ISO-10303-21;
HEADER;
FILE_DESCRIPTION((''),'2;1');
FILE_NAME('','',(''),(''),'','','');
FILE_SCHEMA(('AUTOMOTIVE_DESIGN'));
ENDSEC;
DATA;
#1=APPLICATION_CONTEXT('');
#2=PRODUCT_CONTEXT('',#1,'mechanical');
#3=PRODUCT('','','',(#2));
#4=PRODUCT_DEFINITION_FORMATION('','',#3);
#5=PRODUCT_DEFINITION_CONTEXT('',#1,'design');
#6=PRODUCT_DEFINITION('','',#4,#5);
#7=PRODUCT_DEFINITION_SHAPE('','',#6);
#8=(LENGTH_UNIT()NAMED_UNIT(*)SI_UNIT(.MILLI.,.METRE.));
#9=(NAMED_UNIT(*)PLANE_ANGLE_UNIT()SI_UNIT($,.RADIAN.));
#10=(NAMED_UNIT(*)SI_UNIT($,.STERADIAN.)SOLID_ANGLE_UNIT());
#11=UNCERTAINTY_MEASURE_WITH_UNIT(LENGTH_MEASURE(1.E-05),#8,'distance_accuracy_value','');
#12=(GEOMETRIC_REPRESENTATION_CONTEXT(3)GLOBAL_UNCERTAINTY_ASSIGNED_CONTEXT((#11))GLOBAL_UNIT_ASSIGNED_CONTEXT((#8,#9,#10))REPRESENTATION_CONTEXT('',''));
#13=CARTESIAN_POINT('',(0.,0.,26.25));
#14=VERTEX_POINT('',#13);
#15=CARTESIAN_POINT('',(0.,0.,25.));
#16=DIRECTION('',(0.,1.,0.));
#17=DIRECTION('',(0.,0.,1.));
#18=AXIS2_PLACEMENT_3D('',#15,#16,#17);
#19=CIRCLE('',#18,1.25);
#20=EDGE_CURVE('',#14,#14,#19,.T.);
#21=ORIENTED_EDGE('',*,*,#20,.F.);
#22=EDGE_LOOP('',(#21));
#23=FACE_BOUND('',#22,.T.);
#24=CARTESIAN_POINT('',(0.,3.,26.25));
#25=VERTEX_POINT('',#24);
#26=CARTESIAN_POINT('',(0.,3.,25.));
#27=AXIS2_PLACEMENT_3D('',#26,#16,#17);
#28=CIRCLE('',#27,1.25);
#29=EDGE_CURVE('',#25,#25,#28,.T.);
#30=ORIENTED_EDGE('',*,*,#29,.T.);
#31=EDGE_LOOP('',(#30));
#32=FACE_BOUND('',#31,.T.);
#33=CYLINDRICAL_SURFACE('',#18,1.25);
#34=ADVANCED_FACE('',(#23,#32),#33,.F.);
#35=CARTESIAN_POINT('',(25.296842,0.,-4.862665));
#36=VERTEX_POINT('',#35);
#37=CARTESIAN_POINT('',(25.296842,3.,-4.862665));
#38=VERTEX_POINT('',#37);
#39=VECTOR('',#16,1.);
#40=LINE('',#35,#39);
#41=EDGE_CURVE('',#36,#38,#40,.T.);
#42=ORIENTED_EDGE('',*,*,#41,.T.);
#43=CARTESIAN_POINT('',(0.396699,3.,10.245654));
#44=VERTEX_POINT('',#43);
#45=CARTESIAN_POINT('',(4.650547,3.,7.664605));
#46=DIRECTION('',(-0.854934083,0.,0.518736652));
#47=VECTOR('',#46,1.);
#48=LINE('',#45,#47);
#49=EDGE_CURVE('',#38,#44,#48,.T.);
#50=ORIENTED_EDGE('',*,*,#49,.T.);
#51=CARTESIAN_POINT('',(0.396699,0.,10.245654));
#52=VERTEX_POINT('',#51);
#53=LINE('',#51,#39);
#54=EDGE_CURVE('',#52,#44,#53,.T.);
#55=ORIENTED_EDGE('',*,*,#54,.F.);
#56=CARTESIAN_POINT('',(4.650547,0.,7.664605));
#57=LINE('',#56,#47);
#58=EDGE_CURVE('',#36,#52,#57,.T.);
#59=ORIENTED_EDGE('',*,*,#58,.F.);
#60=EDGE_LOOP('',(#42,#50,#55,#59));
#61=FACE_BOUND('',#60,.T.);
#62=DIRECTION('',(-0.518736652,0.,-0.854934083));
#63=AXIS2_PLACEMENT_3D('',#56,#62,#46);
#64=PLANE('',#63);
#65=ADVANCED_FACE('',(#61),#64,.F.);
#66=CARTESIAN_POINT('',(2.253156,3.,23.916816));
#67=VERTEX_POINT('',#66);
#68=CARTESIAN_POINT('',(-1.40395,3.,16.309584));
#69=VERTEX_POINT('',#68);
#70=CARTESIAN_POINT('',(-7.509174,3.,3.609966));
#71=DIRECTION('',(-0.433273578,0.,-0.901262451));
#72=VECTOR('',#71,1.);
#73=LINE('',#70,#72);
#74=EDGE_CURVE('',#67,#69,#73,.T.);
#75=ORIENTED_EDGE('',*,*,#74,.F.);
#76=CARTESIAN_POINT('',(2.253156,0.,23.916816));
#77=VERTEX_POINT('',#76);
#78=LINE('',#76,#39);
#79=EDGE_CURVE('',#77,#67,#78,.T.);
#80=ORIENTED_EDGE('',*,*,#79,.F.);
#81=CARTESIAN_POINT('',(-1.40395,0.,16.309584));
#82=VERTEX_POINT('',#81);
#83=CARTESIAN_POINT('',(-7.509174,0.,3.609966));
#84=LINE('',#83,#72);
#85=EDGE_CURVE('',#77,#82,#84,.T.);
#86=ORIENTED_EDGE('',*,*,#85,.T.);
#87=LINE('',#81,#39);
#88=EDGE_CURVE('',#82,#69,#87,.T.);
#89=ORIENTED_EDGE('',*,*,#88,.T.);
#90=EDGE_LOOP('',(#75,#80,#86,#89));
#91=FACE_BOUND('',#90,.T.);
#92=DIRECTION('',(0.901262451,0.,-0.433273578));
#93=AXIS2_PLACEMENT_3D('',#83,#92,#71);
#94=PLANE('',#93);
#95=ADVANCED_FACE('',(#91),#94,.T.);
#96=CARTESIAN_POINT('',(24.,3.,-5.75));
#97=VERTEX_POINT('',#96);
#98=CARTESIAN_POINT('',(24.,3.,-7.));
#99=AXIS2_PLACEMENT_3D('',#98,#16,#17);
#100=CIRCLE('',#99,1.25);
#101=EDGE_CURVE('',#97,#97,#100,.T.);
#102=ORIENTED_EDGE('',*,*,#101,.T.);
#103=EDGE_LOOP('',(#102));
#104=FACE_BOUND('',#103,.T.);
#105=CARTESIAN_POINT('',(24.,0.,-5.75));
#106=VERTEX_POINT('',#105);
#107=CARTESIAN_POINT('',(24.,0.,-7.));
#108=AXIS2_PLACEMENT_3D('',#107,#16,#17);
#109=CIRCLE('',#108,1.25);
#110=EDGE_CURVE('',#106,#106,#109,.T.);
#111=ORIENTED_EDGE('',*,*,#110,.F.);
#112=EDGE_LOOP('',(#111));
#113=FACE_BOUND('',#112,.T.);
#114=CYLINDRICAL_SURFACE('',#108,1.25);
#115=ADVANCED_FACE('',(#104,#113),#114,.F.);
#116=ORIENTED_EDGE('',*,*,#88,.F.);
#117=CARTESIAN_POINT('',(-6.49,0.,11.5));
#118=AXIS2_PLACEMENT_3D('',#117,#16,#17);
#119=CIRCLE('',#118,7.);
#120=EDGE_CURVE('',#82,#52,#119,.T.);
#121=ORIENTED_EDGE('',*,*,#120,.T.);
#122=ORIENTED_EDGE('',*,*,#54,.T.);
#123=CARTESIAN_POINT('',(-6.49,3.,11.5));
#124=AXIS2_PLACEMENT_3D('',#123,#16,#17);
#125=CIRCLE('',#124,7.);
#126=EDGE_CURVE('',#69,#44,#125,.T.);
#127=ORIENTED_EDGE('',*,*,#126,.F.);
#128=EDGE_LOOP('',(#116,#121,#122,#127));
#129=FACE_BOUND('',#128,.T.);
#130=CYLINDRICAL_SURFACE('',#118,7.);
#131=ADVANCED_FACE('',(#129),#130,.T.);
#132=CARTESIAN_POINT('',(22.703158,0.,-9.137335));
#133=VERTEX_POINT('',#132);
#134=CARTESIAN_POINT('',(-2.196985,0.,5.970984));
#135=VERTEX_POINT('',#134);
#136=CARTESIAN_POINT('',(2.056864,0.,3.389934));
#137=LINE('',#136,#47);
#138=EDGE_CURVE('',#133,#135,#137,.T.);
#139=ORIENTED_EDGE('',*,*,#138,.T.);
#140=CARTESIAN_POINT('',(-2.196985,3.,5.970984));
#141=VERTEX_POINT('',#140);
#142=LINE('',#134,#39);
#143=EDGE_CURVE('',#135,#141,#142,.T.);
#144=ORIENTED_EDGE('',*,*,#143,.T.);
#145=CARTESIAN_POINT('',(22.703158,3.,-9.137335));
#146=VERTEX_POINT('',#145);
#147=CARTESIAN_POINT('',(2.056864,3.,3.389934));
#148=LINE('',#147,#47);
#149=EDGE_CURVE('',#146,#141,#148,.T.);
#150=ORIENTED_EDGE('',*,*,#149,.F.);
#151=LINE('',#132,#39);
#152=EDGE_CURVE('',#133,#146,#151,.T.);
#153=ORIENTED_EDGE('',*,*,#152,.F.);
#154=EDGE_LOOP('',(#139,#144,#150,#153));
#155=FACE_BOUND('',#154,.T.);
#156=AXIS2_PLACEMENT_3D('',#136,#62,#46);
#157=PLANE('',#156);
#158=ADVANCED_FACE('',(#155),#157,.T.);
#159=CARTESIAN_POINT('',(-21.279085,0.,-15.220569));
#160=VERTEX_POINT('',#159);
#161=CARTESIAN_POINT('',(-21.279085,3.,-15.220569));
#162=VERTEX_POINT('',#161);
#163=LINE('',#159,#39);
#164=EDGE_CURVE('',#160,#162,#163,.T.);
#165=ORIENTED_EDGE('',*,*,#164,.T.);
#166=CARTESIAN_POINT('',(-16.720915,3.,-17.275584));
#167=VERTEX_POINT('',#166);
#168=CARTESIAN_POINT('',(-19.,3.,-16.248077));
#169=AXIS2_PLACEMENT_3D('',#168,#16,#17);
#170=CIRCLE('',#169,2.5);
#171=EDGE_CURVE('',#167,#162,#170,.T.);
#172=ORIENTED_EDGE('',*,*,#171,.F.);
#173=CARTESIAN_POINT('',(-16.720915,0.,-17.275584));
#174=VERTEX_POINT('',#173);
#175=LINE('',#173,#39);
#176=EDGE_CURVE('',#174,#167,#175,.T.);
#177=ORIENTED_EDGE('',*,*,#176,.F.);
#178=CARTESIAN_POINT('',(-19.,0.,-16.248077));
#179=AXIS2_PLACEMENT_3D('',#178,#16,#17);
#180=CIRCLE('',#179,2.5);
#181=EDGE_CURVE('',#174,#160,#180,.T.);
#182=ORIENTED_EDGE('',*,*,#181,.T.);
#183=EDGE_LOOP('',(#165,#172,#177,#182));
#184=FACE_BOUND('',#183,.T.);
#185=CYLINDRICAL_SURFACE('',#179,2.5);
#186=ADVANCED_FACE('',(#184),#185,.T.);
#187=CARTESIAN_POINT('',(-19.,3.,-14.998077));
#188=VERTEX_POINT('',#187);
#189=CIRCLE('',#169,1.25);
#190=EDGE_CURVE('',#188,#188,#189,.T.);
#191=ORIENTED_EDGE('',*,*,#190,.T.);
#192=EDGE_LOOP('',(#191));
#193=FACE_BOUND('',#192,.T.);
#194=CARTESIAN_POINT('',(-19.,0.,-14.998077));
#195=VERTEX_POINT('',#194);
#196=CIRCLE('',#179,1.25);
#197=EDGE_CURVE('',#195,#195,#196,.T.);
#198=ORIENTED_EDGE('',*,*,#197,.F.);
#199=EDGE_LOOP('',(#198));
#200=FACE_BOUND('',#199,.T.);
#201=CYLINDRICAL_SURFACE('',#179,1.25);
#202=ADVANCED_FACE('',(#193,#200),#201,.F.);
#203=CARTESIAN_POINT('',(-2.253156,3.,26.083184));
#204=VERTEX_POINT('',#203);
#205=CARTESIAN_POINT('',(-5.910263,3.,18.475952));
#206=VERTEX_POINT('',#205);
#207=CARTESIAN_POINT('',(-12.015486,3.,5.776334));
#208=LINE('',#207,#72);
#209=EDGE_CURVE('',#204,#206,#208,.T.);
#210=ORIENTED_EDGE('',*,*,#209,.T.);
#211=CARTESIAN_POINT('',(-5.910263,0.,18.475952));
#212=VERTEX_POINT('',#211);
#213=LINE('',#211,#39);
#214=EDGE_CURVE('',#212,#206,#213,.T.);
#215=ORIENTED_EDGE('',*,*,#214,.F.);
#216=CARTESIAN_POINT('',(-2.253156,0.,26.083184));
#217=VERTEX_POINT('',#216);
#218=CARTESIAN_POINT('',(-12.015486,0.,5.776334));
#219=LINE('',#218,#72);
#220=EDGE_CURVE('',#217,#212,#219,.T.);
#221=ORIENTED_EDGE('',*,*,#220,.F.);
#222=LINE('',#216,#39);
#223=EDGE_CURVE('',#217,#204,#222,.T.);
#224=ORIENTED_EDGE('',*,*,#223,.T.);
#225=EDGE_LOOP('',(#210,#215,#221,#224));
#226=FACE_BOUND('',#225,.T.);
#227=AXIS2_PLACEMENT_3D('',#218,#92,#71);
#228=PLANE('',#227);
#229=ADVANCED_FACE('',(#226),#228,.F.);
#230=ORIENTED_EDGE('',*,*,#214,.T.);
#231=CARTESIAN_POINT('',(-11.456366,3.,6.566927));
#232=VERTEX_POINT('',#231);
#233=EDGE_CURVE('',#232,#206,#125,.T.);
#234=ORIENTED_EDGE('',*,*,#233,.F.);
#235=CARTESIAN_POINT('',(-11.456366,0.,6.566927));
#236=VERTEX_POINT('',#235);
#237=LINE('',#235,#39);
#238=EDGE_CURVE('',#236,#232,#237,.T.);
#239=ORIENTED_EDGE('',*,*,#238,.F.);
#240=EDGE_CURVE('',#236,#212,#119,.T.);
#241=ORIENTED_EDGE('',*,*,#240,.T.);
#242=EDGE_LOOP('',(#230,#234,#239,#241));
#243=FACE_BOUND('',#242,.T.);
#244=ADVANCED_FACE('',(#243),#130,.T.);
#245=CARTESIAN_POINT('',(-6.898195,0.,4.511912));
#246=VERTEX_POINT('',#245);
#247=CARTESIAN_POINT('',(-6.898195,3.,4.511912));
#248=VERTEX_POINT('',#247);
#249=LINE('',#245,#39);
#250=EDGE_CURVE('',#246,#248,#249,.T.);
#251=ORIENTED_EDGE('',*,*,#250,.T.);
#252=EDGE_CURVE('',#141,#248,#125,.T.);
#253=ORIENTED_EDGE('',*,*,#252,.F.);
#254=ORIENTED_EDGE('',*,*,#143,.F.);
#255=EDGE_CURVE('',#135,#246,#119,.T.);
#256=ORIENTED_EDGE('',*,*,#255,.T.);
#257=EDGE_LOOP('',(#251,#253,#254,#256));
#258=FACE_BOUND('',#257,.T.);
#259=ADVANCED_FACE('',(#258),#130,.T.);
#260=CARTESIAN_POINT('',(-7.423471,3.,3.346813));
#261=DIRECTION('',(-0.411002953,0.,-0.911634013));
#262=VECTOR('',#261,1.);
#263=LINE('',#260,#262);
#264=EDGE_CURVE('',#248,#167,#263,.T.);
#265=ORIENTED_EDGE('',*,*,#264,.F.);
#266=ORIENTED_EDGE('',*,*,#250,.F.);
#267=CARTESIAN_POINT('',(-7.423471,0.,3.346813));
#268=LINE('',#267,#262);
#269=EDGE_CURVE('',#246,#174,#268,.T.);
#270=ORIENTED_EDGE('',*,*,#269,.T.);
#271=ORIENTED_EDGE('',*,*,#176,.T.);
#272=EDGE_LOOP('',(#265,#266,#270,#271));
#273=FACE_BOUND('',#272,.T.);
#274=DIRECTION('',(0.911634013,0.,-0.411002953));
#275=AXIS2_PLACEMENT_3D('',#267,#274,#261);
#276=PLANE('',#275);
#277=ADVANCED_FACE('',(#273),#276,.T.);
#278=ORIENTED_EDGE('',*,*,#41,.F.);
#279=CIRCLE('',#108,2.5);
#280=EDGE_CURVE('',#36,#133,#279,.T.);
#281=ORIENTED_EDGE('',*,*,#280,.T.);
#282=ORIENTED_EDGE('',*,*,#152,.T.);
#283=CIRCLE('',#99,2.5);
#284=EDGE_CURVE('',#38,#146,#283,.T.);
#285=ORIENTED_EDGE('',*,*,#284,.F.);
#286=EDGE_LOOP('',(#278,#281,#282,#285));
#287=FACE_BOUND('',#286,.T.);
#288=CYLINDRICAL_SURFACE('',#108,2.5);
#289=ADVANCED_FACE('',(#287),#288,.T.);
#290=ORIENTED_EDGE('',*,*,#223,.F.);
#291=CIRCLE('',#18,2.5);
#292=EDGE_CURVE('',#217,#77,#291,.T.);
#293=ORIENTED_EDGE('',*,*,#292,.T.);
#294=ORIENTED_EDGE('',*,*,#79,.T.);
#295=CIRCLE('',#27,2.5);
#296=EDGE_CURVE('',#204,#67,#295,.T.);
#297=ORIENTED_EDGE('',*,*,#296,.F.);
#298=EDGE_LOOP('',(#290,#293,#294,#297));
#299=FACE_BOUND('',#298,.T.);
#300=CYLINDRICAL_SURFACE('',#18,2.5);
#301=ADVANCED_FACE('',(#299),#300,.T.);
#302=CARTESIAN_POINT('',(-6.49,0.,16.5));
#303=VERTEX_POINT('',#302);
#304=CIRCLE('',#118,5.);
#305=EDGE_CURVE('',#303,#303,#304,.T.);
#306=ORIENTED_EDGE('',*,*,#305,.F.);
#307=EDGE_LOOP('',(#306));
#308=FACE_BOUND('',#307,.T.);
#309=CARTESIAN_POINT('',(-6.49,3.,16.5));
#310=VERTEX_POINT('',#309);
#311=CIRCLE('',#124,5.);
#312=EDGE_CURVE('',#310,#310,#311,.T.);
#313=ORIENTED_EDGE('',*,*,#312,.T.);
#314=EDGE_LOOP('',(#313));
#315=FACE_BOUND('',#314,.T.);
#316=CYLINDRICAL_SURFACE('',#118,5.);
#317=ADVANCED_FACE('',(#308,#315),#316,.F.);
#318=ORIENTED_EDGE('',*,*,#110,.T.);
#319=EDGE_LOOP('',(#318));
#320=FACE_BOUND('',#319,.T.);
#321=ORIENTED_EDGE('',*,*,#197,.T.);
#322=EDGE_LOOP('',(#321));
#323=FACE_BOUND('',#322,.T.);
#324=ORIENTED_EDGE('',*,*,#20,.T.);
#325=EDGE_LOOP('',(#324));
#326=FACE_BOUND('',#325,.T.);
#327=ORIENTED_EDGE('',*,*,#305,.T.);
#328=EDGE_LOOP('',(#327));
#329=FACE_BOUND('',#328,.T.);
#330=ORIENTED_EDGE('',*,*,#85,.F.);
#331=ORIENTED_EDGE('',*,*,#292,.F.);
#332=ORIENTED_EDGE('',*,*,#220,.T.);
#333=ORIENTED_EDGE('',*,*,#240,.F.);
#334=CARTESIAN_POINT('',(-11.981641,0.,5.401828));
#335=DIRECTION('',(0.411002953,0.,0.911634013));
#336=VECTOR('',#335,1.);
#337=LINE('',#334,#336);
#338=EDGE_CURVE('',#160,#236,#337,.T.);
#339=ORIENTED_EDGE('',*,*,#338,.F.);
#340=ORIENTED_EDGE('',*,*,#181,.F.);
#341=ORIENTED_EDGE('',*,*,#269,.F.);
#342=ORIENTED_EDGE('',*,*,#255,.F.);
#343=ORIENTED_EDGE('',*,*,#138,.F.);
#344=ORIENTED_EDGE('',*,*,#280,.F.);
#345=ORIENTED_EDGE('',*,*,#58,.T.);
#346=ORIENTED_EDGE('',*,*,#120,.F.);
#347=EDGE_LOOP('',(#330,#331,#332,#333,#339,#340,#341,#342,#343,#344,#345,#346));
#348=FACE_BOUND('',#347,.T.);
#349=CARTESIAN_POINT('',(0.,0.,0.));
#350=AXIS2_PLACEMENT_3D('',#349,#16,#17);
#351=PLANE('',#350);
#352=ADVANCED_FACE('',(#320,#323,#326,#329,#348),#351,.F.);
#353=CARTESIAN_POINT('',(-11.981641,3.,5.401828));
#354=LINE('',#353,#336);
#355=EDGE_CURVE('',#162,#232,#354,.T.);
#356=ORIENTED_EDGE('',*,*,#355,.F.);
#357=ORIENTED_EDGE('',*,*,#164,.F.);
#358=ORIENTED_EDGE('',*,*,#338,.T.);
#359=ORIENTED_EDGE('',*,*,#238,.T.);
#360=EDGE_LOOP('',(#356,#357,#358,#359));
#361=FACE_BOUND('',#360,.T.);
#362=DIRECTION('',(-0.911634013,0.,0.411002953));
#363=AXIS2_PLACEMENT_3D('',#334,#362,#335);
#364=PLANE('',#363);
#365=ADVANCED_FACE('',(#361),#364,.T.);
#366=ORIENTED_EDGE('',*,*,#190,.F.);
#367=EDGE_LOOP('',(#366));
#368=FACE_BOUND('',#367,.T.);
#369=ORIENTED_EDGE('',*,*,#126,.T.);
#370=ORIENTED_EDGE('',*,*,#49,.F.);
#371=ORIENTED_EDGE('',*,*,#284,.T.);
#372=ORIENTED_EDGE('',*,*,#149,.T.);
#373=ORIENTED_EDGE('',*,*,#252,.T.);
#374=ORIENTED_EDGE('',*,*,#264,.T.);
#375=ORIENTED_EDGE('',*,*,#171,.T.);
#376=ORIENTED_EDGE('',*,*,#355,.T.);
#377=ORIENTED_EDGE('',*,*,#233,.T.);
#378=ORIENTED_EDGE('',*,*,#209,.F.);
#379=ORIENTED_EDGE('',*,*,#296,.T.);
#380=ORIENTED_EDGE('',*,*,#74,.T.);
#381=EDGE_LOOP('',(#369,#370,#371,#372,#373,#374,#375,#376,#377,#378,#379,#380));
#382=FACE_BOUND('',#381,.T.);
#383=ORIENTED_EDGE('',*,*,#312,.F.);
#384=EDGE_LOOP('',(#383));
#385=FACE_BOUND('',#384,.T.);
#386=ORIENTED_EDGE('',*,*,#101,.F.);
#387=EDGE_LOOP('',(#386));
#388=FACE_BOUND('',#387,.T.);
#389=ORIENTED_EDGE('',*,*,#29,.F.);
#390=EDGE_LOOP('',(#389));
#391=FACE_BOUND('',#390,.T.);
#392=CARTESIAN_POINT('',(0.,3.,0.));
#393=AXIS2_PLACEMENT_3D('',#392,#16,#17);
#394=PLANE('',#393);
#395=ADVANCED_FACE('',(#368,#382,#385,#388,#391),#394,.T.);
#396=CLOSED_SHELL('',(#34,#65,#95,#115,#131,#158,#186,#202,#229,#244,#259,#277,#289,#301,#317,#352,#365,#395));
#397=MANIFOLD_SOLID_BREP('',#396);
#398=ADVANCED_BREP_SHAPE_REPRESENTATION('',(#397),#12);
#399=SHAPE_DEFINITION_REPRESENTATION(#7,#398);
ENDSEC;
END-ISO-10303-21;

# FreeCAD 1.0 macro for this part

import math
import FreeCAD as App
import Part
import Sketcher
from FreeCAD import Vector

doc = App.newDocument("Part")
body = doc.addObject("PartDesign::Body", "Body")

sketch1 = doc.addObject("Sketcher::SketchObject", "Sketch")
body.addObject(sketch1)
sketch1.AttachmentSupport = (doc.XZ_Plane, [""])
sketch1.MapMode = "FlatFace"
sketch1.addGeometry(Part.Circle(Vector(0, 0, 0), Vector(0, 0, 1), 28), False)
sketch1.addConstraint([
    Sketcher.Constraint("Coincident", 0, 3, -1, 1),
    Sketcher.Constraint("Diameter", 0, 55.0),
])
pad1 = doc.addObject("PartDesign::Pad", "Pad")
body.addObject(pad1)
pad1.Profile = sketch1
pad1.Length = 3
pad1.Reversed = True

sketch2 = doc.addObject("Sketcher::SketchObject", "Sketch001")
body.addObject(sketch2)
sketch2.AttachmentSupport = (doc.XZ_Plane, [""])
sketch2.MapMode = "FlatFace"
sketch2.AttachmentOffset = App.Placement(Vector(0, 0, -3), App.Rotation())
sketch2.addGeometry([
    Part.Circle(Vector(0, 25, 0), Vector(0, 0, 1), 1.2),
    Part.Circle(Vector(24, -7, 0), Vector(0, 0, 1), 1.2),
    Part.Circle(Vector(-19, -16.2, 0), Vector(0, 0, 1), 1.2),
], False)
sketch2.addConstraint([
    Sketcher.Constraint("Equal", 0, 1),
    Sketcher.Constraint("Equal", 1, 2),
    Sketcher.Constraint("PointOnObject", 0, 3, -2),
    Sketcher.Constraint("Diameter", 0, 2.5),
    Sketcher.Constraint("DistanceY", -1, 1, 0, 3, 25.0),
    Sketcher.Constraint("DistanceX", -1, 1, 1, 3, 24.0),
    Sketcher.Constraint("DistanceY", 1, 3, -1, 1, 7.0),
    Sketcher.Constraint("DistanceX", 2, 3, -1, 1, 19.0),
    Sketcher.Constraint("DistanceY", 2, 3, -1, 1, 16.248077),
])
pocket1 = doc.addObject("PartDesign::Pocket", "Pocket")
body.addObject(pocket1)
pocket1.Profile = sketch2
pocket1.Length = 3
pocket1.Reversed = True

sketch3 = doc.addObject("Sketcher::SketchObject", "Sketch002")
body.addObject(sketch3)
sketch3.AttachmentSupport = (doc.XZ_Plane, [""])
sketch3.MapMode = "FlatFace"
sketch3.addGeometry([
    Part.LineSegment(Vector(-2.2, 6, 0), Vector(22.7, -9.1, 0)),
    Part.ArcOfCircle(Part.Circle(Vector(24, -7, 0), Vector(0, 0, 1), 2.5), math.radians(-121), math.radians(-16)),
    Part.ArcOfCircle(Part.Circle(Vector(0, 0, 0), Vector(0, 0, 1), 27.5), math.radians(-139), math.radians(-16)),
    Part.ArcOfCircle(Part.Circle(Vector(-19, -16.2, 0), Vector(0, 0, 1), 2.5), math.radians(-139), math.radians(-24)),
    Part.LineSegment(Vector(-16.7, -17.3, 0), Vector(-6.9, 4.5, 0)),
    Part.ArcOfCircle(Part.Circle(Vector(-6.5, 11.5, 0), Vector(0, 0, 1), 7), math.radians(-93), math.radians(-52)),
    Part.ArcOfCircle(Part.Circle(Vector(24, -7, 0), Vector(0, 0, 1), 2.5), math.radians(0), math.radians(59)),
    Part.LineSegment(Vector(25.3, -4.9, 0), Vector(0.4, 10.2, 0)),
    Part.ArcOfCircle(Part.Circle(Vector(-6.5, 11.5, 0), Vector(0, 0, 1), 7), math.radians(-10.32), math.radians(0)),
    Part.ArcOfCircle(Part.Circle(Vector(-6.5, 11.5, 0), Vector(0, 0, 1), 7), math.radians(0), math.radians(43)),
    Part.LineSegment(Vector(-1.4, 16.3, 0), Vector(2.3, 23.9, 0)),
    Part.ArcOfCircle(Part.Circle(Vector(0, 25, 0), Vector(0, 0, 1), 2.5), math.radians(-26), math.radians(0)),
    Part.ArcOfCircle(Part.Circle(Vector(0, 25, 0), Vector(0, 0, 1), 2.5), math.radians(0), math.radians(90)),
    Part.ArcOfCircle(Part.Circle(Vector(0, 0, 0), Vector(0, 0, 1), 27.5), math.radians(0), math.radians(90)),
    Part.ArcOfCircle(Part.Circle(Vector(0, 0, 0), Vector(0, 0, 1), 27.5), math.radians(-16.26), math.radians(0)),
    Part.ArcOfCircle(Part.Circle(Vector(24, -7, 0), Vector(0, 0, 1), 2.5), math.radians(-16.26), math.radians(0)),
    Part.Circle(Vector(-6.5, 11.5, 0), Vector(0, 0, 1), 5),
    Part.Circle(Vector(0, 25, 0), Vector(0, 0, 1), 1.2),
    Part.Circle(Vector(24, -7, 0), Vector(0, 0, 1), 1.2),
    Part.Circle(Vector(-19, -16.2, 0), Vector(0, 0, 1), 1.2),
    Part.ArcOfCircle(Part.Circle(Vector(-19, -16.2, 0), Vector(0, 0, 1), 2.5), math.radians(156), math.radians(221)),
    Part.ArcOfCircle(Part.Circle(Vector(0, 0, 0), Vector(0, 0, 1), 27.5), math.radians(90), math.radians(221)),
    Part.ArcOfCircle(Part.Circle(Vector(0, 25, 0), Vector(0, 0, 1), 2.5), math.radians(90), math.radians(154)),
    Part.LineSegment(Vector(-2.3, 26.1, 0), Vector(-5.9, 18.5, 0)),
    Part.ArcOfCircle(Part.Circle(Vector(-6.5, 11.5, 0), Vector(0, 0, 1), 7), math.radians(85), math.radians(225)),
    Part.LineSegment(Vector(-11.5, 6.6, 0), Vector(-21.3, -15.2, 0)),
], False)
sketch3.addConstraint([
    Sketcher.Constraint("Tangent", 0, 2, 1, 1),
    Sketcher.Constraint("Tangent", 1, 2, 2, 2),
    Sketcher.Constraint("Tangent", 2, 1, 3, 1),
    Sketcher.Constraint("Tangent", 3, 2, 4, 1),
    Sketcher.Constraint("Coincident", 4, 2, 5, 1),
    Sketcher.Constraint("Coincident", 5, 2, 0, 1),
    Sketcher.Constraint("Tangent", 6, 2, 7, 1),
    Sketcher.Constraint("Coincident", 7, 2, 8, 1),
    Sketcher.Constraint("Tangent", 8, 2, 9, 1),
    Sketcher.Constraint("Coincident", 9, 2, 10, 1),
    Sketcher.Constraint("Tangent", 10, 2, 11, 1),
    Sketcher.Constraint("Tangent", 11, 2, 12, 1),
    Sketcher.Constraint("Tangent", 12, 2, 13, 2),
    Sketcher.Constraint("Tangent", 13, 1, 14, 2),
    Sketcher.Constraint("Tangent", 14, 1, 15, 1),
    Sketcher.Constraint("Tangent", 15, 2, 6, 1),
    Sketcher.Constraint("Tangent", 20, 2, 21, 2),
    Sketcher.Constraint("Tangent", 21, 1, 22, 1),
    Sketcher.Constraint("Tangent", 22, 2, 23, 1),
    Sketcher.Constraint("Coincident", 23, 2, 24, 1),
    Sketcher.Constraint("Coincident", 24, 2, 25, 1),
    Sketcher.Constraint("Tangent", 25, 2, 20, 1),
    Sketcher.Constraint("Coincident", 2, 3, -1, 1),
    Sketcher.Constraint("Coincident", 13, 3, -1, 1),
    Sketcher.Constraint("Coincident", 21, 3, -1, 1),
    Sketcher.Constraint("Coincident", 6, 3, 1, 3),
    Sketcher.Constraint("Coincident", 8, 3, 5, 3),
    Sketcher.Constraint("Coincident", 16, 3, 5, 3),
    Sketcher.Constraint("Coincident", 17, 3, 11, 3),
    Sketcher.Constraint("Coincident", 18, 3, 1, 3),
    Sketcher.Constraint("Coincident", 19, 3, 3, 3),
    Sketcher.Constraint("Coincident", 20, 3, 3, 3),
    Sketcher.Constraint("Coincident", 22, 3, 11, 3),
    Sketcher.Constraint("Coincident", 24, 3, 5, 3),
    Sketcher.Constraint("Coincident", 14, 1, 1, 2),
    Sketcher.Constraint("Coincident", 21, 1, 12, 2),
    Sketcher.Constraint("Equal", 1, 3),
    Sketcher.Constraint("Equal", 5, 8),
    Sketcher.Constraint("Equal", 8, 9),
    Sketcher.Constraint("Equal", 6, 11),
    Sketcher.Constraint("Equal", 2, 13),
    Sketcher.Constraint("Equal", 17, 18),
    Sketcher.Constraint("Equal", 18, 19),
    Sketcher.Constraint("Equal", 9, 24),
    Sketcher.Constraint("PointOnObject", 11, 3, -2),
    Sketcher.Constraint("PointOnObject", 13, 1, -1),
    Sketcher.Constraint("Parallel", 0, 7),
    Sketcher.Constraint("Parallel", 10, 23),
    Sketcher.Constraint("Parallel", 4, 25),
    Sketcher.Constraint("Horizontal", 24, 3, 8, 2),
    Sketcher.Constraint("Horizontal", 22, 3, 11, 2),
    Sketcher.Constraint("Horizontal", 18, 3, 15, 2),
    Sketcher.Constraint("Equal", 0, 7),
    Sketcher.Constraint("Equal", 10, 23),
    Sketcher.Constraint("Equal", 4, 25),
    Sketcher.Constraint("Diameter", 16, 10.0),
    Sketcher.Constraint("Radius", 5, 7.0),
    Sketcher.Constraint("Diameter", 17, 2.5),
    Sketcher.Constraint("Radius", 1, 2.5),
    Sketcher.Constraint("Radius", 2, 27.5),
    Sketcher.Constraint("DistanceX", -1, 1, 1, 3, 24.0),
    Sketcher.Constraint("DistanceX", 3, 3, -1, 1, 19.0),
    Sketcher.Constraint("DistanceY", -1, 1, 5, 3, 11.5),
    Sketcher.Constraint("DistanceX", 5, 3, -1, 1, 6.49),
])
pocket2 = doc.addObject("PartDesign::Pocket", "Pocket001")
body.addObject(pocket2)
pocket2.Profile = sketch3
pocket2.Length = 3

doc.recompute()
